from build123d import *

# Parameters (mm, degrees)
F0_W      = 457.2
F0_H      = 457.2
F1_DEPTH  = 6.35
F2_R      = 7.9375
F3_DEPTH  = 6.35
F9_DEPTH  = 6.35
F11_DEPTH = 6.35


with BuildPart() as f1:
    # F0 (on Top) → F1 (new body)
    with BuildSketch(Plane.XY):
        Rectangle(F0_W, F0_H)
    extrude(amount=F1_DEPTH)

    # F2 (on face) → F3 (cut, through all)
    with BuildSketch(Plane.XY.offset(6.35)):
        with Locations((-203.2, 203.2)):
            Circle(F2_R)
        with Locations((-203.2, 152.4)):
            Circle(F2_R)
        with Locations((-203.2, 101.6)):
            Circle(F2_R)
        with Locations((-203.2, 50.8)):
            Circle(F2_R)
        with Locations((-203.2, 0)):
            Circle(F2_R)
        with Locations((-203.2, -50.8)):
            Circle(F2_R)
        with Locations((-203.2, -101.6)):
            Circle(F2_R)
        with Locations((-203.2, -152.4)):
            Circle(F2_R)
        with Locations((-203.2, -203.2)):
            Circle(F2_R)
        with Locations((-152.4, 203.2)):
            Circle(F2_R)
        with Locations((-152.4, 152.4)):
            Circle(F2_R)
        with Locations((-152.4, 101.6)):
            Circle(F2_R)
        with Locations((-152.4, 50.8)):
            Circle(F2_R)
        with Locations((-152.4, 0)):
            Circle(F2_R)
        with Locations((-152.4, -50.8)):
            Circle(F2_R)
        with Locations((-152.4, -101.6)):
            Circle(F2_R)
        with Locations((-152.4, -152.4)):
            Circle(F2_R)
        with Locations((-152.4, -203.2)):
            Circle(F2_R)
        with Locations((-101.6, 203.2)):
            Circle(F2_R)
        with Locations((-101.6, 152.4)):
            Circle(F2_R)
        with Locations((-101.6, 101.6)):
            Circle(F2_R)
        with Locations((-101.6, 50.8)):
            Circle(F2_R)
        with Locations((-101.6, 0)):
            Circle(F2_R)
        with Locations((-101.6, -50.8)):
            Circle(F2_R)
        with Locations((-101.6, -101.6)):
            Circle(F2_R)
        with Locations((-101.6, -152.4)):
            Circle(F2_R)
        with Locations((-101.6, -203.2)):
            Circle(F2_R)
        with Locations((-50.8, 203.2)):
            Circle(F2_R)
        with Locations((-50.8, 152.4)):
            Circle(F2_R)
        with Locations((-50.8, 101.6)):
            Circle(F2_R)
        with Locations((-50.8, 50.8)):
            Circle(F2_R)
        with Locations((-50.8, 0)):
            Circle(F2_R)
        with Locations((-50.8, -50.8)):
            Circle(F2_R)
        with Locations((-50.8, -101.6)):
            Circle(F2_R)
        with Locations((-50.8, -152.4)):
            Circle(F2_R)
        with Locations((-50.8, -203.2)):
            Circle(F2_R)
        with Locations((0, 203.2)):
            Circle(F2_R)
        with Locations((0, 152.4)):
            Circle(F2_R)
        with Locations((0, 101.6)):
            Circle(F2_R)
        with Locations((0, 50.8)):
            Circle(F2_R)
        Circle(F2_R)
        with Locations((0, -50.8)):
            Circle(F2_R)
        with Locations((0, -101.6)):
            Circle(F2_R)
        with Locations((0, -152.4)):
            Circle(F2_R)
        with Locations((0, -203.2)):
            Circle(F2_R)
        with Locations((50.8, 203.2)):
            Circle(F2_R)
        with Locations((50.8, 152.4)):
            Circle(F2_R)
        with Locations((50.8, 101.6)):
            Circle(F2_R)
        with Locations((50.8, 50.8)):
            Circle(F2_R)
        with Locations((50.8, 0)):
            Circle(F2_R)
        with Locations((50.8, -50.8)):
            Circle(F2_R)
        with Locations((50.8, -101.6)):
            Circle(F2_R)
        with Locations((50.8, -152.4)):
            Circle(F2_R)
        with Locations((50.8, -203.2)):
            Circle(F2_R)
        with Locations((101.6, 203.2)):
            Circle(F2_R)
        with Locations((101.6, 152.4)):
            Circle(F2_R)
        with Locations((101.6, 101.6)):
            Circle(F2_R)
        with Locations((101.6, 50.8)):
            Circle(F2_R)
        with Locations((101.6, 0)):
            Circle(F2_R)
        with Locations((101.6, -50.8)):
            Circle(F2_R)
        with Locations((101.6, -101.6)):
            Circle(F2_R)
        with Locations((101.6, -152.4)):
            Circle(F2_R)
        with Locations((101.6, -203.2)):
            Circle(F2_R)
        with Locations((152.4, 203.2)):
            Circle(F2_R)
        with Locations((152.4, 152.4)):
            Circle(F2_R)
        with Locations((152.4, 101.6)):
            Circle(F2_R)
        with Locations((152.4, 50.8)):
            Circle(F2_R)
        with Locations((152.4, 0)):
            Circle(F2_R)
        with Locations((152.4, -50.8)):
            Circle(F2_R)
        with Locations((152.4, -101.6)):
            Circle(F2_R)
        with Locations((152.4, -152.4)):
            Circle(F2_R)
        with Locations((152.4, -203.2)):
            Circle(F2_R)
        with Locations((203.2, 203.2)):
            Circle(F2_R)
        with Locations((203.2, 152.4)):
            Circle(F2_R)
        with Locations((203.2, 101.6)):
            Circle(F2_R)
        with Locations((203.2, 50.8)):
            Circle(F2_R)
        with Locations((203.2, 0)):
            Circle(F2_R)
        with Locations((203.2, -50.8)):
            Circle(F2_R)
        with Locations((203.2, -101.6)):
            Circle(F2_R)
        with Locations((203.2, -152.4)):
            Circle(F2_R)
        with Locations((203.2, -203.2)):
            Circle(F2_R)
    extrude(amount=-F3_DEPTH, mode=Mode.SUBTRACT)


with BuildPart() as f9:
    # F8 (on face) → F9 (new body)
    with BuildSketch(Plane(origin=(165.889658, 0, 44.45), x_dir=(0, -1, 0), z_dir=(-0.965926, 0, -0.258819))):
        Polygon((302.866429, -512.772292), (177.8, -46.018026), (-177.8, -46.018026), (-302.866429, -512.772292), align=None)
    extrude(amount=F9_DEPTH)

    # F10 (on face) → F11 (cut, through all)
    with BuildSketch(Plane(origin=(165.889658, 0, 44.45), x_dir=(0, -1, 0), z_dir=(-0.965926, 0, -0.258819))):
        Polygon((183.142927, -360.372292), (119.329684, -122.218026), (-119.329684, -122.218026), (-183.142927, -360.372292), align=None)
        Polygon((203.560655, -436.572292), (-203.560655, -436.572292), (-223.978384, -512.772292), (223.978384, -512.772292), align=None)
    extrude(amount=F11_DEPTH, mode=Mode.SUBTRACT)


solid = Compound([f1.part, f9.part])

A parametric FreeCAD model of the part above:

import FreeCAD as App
import Part
import Sketcher

V = App.Vector
Q = App.Units.Quantity


def add_polygon(sketch, points):
    """Adds a closed chain of lines whose ends are joined by coincident constraints."""
    first, n = sketch.GeometryCount, len(points)
    for a, b in zip(points, points[1:] + points[:1]):
        sketch.addGeometry(Part.LineSegment(App.Vector(*a, 0), App.Vector(*b, 0)), False)
    for i in range(n):
        sketch.addConstraint(Sketcher.Constraint("Coincident", first + i, 2, first + (i + 1) % n, 1))

doc = App.newDocument("Part")
body = doc.addObject("PartDesign::Body", "Body")

sketch1 = body.newObject("Sketcher::SketchObject", "Sketch")
sketch1.AttachmentSupport = (doc.getObject("XY_Plane"), [""])
sketch1.MapMode = "FlatFace"
add_polygon(sketch1, [(-229, 229), (-229, -229), (229, -229), (229, 229)])
sketch1.addConstraint([
    Sketcher.Constraint("Vertical", 0),
    Sketcher.Constraint("Horizontal", 1),
    Sketcher.Constraint("Vertical", 2),
    Sketcher.Constraint("Horizontal", 3),
    Sketcher.Constraint("Symmetric", 0, 2, 2, 2, -1, 1),
    Sketcher.Constraint("Equal", 3, 0),
    Sketcher.Constraint("DistanceX", 1, 1, 1, 2, Q("18 in")),
])
pad1 = body.newObject("PartDesign::Pad", "Pad")
pad1.Profile = sketch1
pad1.Length = Q("0.25 in")

sketch2 = body.newObject("Sketcher::SketchObject", "Sketch001")
sketch2.AttachmentSupport = (doc.getObject("XY_Plane"), [""])
sketch2.MapMode = "FlatFace"
sketch2.AttachmentOffset = App.Placement(V(0, 0, 0.25 * 25.4), App.Rotation())
sketch2.addGeometry([
    Part.Circle(V(-203, 203, 0), V(0, 0, 1), 8),
    Part.Circle(V(-203, 152, 0), V(0, 0, 1), 8),
    Part.Circle(V(-203, 102, 0), V(0, 0, 1), 8),
    Part.Circle(V(-203, 51, 0), V(0, 0, 1), 8),
    Part.Circle(V(-203, 0, 0), V(0, 0, 1), 8),
    Part.Circle(V(-203, -51, 0), V(0, 0, 1), 8),
    Part.Circle(V(-203, -102, 0), V(0, 0, 1), 8),
    Part.Circle(V(-203, -152, 0), V(0, 0, 1), 8),
    Part.Circle(V(-203, -203, 0), V(0, 0, 1), 8),
    Part.Circle(V(-152, 203, 0), V(0, 0, 1), 8),
    Part.Circle(V(-152, 152, 0), V(0, 0, 1), 8),
    Part.Circle(V(-152, 102, 0), V(0, 0, 1), 8),
    Part.Circle(V(-152, 51, 0), V(0, 0, 1), 8),
    Part.Circle(V(-152, 0, 0), V(0, 0, 1), 8),
    Part.Circle(V(-152, -51, 0), V(0, 0, 1), 8),
    Part.Circle(V(-152, -102, 0), V(0, 0, 1), 8),
    Part.Circle(V(-152, -152, 0), V(0, 0, 1), 8),
    Part.Circle(V(-152, -203, 0), V(0, 0, 1), 8),
    Part.Circle(V(-102, 203, 0), V(0, 0, 1), 8),
    Part.Circle(V(-102, 152, 0), V(0, 0, 1), 8),
    Part.Circle(V(-102, 102, 0), V(0, 0, 1), 8),
    Part.Circle(V(-102, 51, 0), V(0, 0, 1), 8),
    Part.Circle(V(-102, 0, 0), V(0, 0, 1), 8),
    Part.Circle(V(-102, -51, 0), V(0, 0, 1), 8),
    Part.Circle(V(-102, -102, 0), V(0, 0, 1), 8),
    Part.Circle(V(-102, -152, 0), V(0, 0, 1), 8),
    Part.Circle(V(-102, -203, 0), V(0, 0, 1), 8),
    Part.Circle(V(-51, 203, 0), V(0, 0, 1), 8),
    Part.Circle(V(-51, 152, 0), V(0, 0, 1), 8),
    Part.Circle(V(-51, 102, 0), V(0, 0, 1), 8),
    Part.Circle(V(-51, 51, 0), V(0, 0, 1), 8),
    Part.Circle(V(-51, 0, 0), V(0, 0, 1), 8),
    Part.Circle(V(-51, -51, 0), V(0, 0, 1), 8),
    Part.Circle(V(-51, -102, 0), V(0, 0, 1), 8),
    Part.Circle(V(-51, -152, 0), V(0, 0, 1), 8),
    Part.Circle(V(-51, -203, 0), V(0, 0, 1), 8),
    Part.Circle(V(0, 203, 0), V(0, 0, 1), 8),
    Part.Circle(V(0, 152, 0), V(0, 0, 1), 8),
    Part.Circle(V(0, 102, 0), V(0, 0, 1), 8),
    Part.Circle(V(0, 51, 0), V(0, 0, 1), 8),
    Part.Circle(V(0, 0, 0), V(0, 0, 1), 8),
    Part.Circle(V(0, -51, 0), V(0, 0, 1), 8),
    Part.Circle(V(0, -102, 0), V(0, 0, 1), 8),
    Part.Circle(V(0, -152, 0), V(0, 0, 1), 8),
    Part.Circle(V(0, -203, 0), V(0, 0, 1), 8),
    Part.Circle(V(51, 203, 0), V(0, 0, 1), 8),
    Part.Circle(V(51, 152, 0), V(0, 0, 1), 8),
    Part.Circle(V(51, 102, 0), V(0, 0, 1), 8),
    Part.Circle(V(51, 51, 0), V(0, 0, 1), 8),
    Part.Circle(V(51, 0, 0), V(0, 0, 1), 8),
    Part.Circle(V(51, -51, 0), V(0, 0, 1), 8),
    Part.Circle(V(51, -102, 0), V(0, 0, 1), 8),
    Part.Circle(V(51, -152, 0), V(0, 0, 1), 8),
    Part.Circle(V(51, -203, 0), V(0, 0, 1), 8),
    Part.Circle(V(102, 203, 0), V(0, 0, 1), 8),
    Part.Circle(V(102, 152, 0), V(0, 0, 1), 8),
    Part.Circle(V(102, 102, 0), V(0, 0, 1), 8),
    Part.Circle(V(102, 51, 0), V(0, 0, 1), 8),
    Part.Circle(V(102, 0, 0), V(0, 0, 1), 8),
    Part.Circle(V(102, -51, 0), V(0, 0, 1), 8),
    Part.Circle(V(102, -102, 0), V(0, 0, 1), 8),
    Part.Circle(V(102, -152, 0), V(0, 0, 1), 8),
    Part.Circle(V(102, -203, 0), V(0, 0, 1), 8),
    Part.Circle(V(152, 203, 0), V(0, 0, 1), 8),
    Part.Circle(V(152, 152, 0), V(0, 0, 1), 8),
    Part.Circle(V(152, 102, 0), V(0, 0, 1), 8),
    Part.Circle(V(152, 51, 0), V(0, 0, 1), 8),
    Part.Circle(V(152, 0, 0), V(0, 0, 1), 8),
    Part.Circle(V(152, -51, 0), V(0, 0, 1), 8),
    Part.Circle(V(152, -102, 0), V(0, 0, 1), 8),
    Part.Circle(V(152, -152, 0), V(0, 0, 1), 8),
    Part.Circle(V(152, -203, 0), V(0, 0, 1), 8),
    Part.Circle(V(203, 203, 0), V(0, 0, 1), 8),
    Part.Circle(V(203, 152, 0), V(0, 0, 1), 8),
    Part.Circle(V(203, 102, 0), V(0, 0, 1), 8),
    Part.Circle(V(203, 51, 0), V(0, 0, 1), 8),
    Part.Circle(V(203, 0, 0), V(0, 0, 1), 8),
    Part.Circle(V(203, -51, 0), V(0, 0, 1), 8),
    Part.Circle(V(203, -102, 0), V(0, 0, 1), 8),
    Part.Circle(V(203, -152, 0), V(0, 0, 1), 8),
    Part.Circle(V(203, -203, 0), V(0, 0, 1), 8),
], False)
sketch2.addConstraint([
    Sketcher.Constraint("Coincident", 40, 3, -1, 1),
    Sketcher.Constraint("Equal", 0, 1),
    Sketcher.Constraint("Equal", 1, 2),
    Sketcher.Constraint("Equal", 2, 3),
    Sketcher.Constraint("Equal", 3, 4),
    Sketcher.Constraint("Equal", 4, 5),
    Sketcher.Constraint("Equal", 5, 6),
    Sketcher.Constraint("Equal", 6, 7),
    Sketcher.Constraint("Equal", 7, 8),
    Sketcher.Constraint("Equal", 8, 9),
    Sketcher.Constraint("Equal", 9, 10),
    Sketcher.Constraint("Equal", 10, 11),
    Sketcher.Constraint("Equal", 11, 12),
    Sketcher.Constraint("Equal", 12, 13),
    Sketcher.Constraint("Equal", 13, 14),
    Sketcher.Constraint("Equal", 14, 15),
    Sketcher.Constraint("Equal", 15, 16),
    Sketcher.Constraint("Equal", 16, 17),
    Sketcher.Constraint("Equal", 17, 18),
    Sketcher.Constraint("Equal", 18, 19),
    Sketcher.Constraint("Equal", 19, 20),
    Sketcher.Constraint("Equal", 20, 21),
    Sketcher.Constraint("Equal", 21, 22),
    Sketcher.Constraint("Equal", 22, 23),
    Sketcher.Constraint("Equal", 23, 24),
    Sketcher.Constraint("Equal", 24, 25),
    Sketcher.Constraint("Equal", 25, 26),
    Sketcher.Constraint("Equal", 26, 27),
    Sketcher.Constraint("Equal", 27, 28),
    Sketcher.Constraint("Equal", 28, 29),
    Sketcher.Constraint("Equal", 29, 30),
    Sketcher.Constraint("Equal", 30, 31),
    Sketcher.Constraint("Equal", 31, 32),
    Sketcher.Constraint("Equal", 32, 33),
    Sketcher.Constraint("Equal", 33, 34),
    Sketcher.Constraint("Equal", 34, 35),
    Sketcher.Constraint("Equal", 35, 36),
    Sketcher.Constraint("Equal", 36, 37),
    Sketcher.Constraint("Equal", 37, 38),
    Sketcher.Constraint("Equal", 38, 39),
    Sketcher.Constraint("Equal", 39, 40),
    Sketcher.Constraint("Equal", 40, 41),
    Sketcher.Constraint("Equal", 41, 42),
    Sketcher.Constraint("Equal", 42, 43),
    Sketcher.Constraint("Equal", 43, 44),
    Sketcher.Constraint("Equal", 44, 45),
    Sketcher.Constraint("Equal", 45, 46),
    Sketcher.Constraint("Equal", 46, 47),
    Sketcher.Constraint("Equal", 47, 48),
    Sketcher.Constraint("Equal", 48, 49),
    Sketcher.Constraint("Equal", 49, 50),
    Sketcher.Constraint("Equal", 50, 51),
    Sketcher.Constraint("Equal", 51, 52),
    Sketcher.Constraint("Equal", 52, 53),
    Sketcher.Constraint("Equal", 53, 54),
    Sketcher.Constraint("Equal", 54, 55),
    Sketcher.Constraint("Equal", 55, 56),
    Sketcher.Constraint("Equal", 56, 57),
    Sketcher.Constraint("Equal", 57, 58),
    Sketcher.Constraint("Equal", 58, 59),
    Sketcher.Constraint("Equal", 59, 60),
    Sketcher.Constraint("Equal", 60, 61),
    Sketcher.Constraint("Equal", 61, 62),
    Sketcher.Constraint("Equal", 62, 63),
    Sketcher.Constraint("Equal", 63, 64),
    Sketcher.Constraint("Equal", 64, 65),
    Sketcher.Constraint("Equal", 65, 66),
    Sketcher.Constraint("Equal", 66, 67),
    Sketcher.Constraint("Equal", 67, 68),
    Sketcher.Constraint("Equal", 68, 69),
    Sketcher.Constraint("Equal", 69, 70),
    Sketcher.Constraint("Equal", 70, 71),
    Sketcher.Constraint("Equal", 71, 72),
    Sketcher.Constraint("Equal", 72, 73),
    Sketcher.Constraint("Equal", 73, 74),
    Sketcher.Constraint("Equal", 74, 75),
    Sketcher.Constraint("Equal", 75, 76),
    Sketcher.Constraint("Equal", 76, 77),
    Sketcher.Constraint("Equal", 77, 78),
    Sketcher.Constraint("Equal", 78, 79),
    Sketcher.Constraint("Equal", 79, 80),
    Sketcher.Constraint("Symmetric", 39, 3, 41, 3, -1, 1),
    Sketcher.Constraint("Symmetric", 38, 3, 42, 3, -1, 1),
    Sketcher.Constraint("Symmetric", 37, 3, 43, 3, -1, 1),
    Sketcher.Constraint("Symmetric", 36, 3, 44, 3, -1, 1),
    Sketcher.Constraint("Symmetric", 35, 3, 45, 3, -1, 1),
    Sketcher.Constraint("Symmetric", 34, 3, 46, 3, -1, 1),
    Sketcher.Constraint("Symmetric", 33, 3, 47, 3, -1, 1),
    Sketcher.Constraint("Symmetric", 32, 3, 48, 3, -1, 1),
    Sketcher.Constraint("Symmetric", 31, 3, 49, 3, -1, 1),
    Sketcher.Constraint("Symmetric", 30, 3, 50, 3, -1, 1),
    Sketcher.Constraint("Symmetric", 29, 3, 51, 3, -1, 1),
    Sketcher.Constraint("Symmetric", 28, 3, 52, 3, -1, 1),
    Sketcher.Constraint("Symmetric", 27, 3, 53, 3, -1, 1),
    Sketcher.Constraint("Symmetric", 26, 3, 54, 3, -1, 1),
    Sketcher.Constraint("Symmetric", 25, 3, 55, 3, -1, 1),
    Sketcher.Constraint("Symmetric", 24, 3, 56, 3, -1, 1),
    Sketcher.Constraint("Symmetric", 23, 3, 57, 3, -1, 1),
    Sketcher.Constraint("Symmetric", 22, 3, 58, 3, -1, 1),
    Sketcher.Constraint("Symmetric", 21, 3, 59, 3, -1, 1),
    Sketcher.Constraint("Symmetric", 20, 3, 60, 3, -1, 1),
    Sketcher.Constraint("Symmetric", 19, 3, 61, 3, -1, 1),
    Sketcher.Constraint("Symmetric", 18, 3, 62, 3, -1, 1),
    Sketcher.Constraint("Symmetric", 17, 3, 63, 3, -1, 1),
    Sketcher.Constraint("Symmetric", 16, 3, 64, 3, -1, 1),
    Sketcher.Constraint("Symmetric", 15, 3, 65, 3, -1, 1),
    Sketcher.Constraint("Symmetric", 14, 3, 66, 3, -1, 1),
    Sketcher.Constraint("Symmetric", 13, 3, 67, 3, -1, 1),
    Sketcher.Constraint("Symmetric", 12, 3, 68, 3, -1, 1),
    Sketcher.Constraint("Symmetric", 11, 3, 69, 3, -1, 1),
    Sketcher.Constraint("Symmetric", 10, 3, 70, 3, -1, 1),
    Sketcher.Constraint("Symmetric", 9, 3, 71, 3, -1, 1),
    Sketcher.Constraint("Symmetric", 8, 3, 72, 3, -1, 1),
    Sketcher.Constraint("Symmetric", 7, 3, 73, 3, -1, 1),
    Sketcher.Constraint("Symmetric", 6, 3, 74, 3, -1, 1),
    Sketcher.Constraint("Symmetric", 5, 3, 75, 3, -1, 1),
    Sketcher.Constraint("Symmetric", 4, 3, 76, 3, -1, 1),
    Sketcher.Constraint("Symmetric", 3, 3, 77, 3, -1, 1),
    Sketcher.Constraint("Symmetric", 2, 3, 78, 3, -1, 1),
    Sketcher.Constraint("Symmetric", 1, 3, 79, 3, -1, 1),
    Sketcher.Constraint("Symmetric", 0, 3, 80, 3, -1, 1),
    Sketcher.Constraint("Symmetric", 27, 3, 45, 3, -2),
    Sketcher.Constraint("Symmetric", 28, 3, 46, 3, -2),
    Sketcher.Constraint("Symmetric", 29, 3, 47, 3, -2),
    Sketcher.Constraint("Symmetric", 30, 3, 48, 3, -2),
    Sketcher.Constraint("Symmetric", 18, 3, 54, 3, -2),
    Sketcher.Constraint("Symmetric", 19, 3, 55, 3, -2),
    Sketcher.Constraint("Symmetric", 20, 3, 56, 3, -2),
    Sketcher.Constraint("Symmetric", 21, 3, 57, 3, -2),
    Sketcher.Constraint("Symmetric", 9, 3, 63, 3, -2),
    Sketcher.Constraint("Symmetric", 10, 3, 64, 3, -2),
    Sketcher.Constraint("Symmetric", 11, 3, 65, 3, -2),
    Sketcher.Constraint("Symmetric", 12, 3, 66, 3, -2),
    Sketcher.Constraint("Symmetric", 0, 3, 72, 3, -2),
    Sketcher.Constraint("Symmetric", 1, 3, 73, 3, -2),
    Sketcher.Constraint("Symmetric", 2, 3, 74, 3, -2),
    Sketcher.Constraint("Symmetric", 3, 3, 75, 3, -2),
    Sketcher.Constraint("PointOnObject", 4, 3, -1),
    Sketcher.Constraint("PointOnObject", 13, 3, -1),
    Sketcher.Constraint("PointOnObject", 22, 3, -1),
    Sketcher.Constraint("PointOnObject", 31, 3, -1),
    Sketcher.Constraint("PointOnObject", 36, 3, -2),
    Sketcher.Constraint("PointOnObject", 37, 3, -2),
    Sketcher.Constraint("PointOnObject", 38, 3, -2),
    Sketcher.Constraint("PointOnObject", 39, 3, -2),
    Sketcher.Constraint("Horizontal", 0, 3, 9, 3),
    Sketcher.Constraint("Horizontal", 1, 3, 10, 3),
    Sketcher.Constraint("Horizontal", 2, 3, 11, 3),
    Sketcher.Constraint("Horizontal", 3, 3, 12, 3),
    Sketcher.Constraint("Horizontal", 9, 3, 18, 3),
    Sketcher.Constraint("Horizontal", 10, 3, 19, 3),
    Sketcher.Constraint("Horizontal", 11, 3, 20, 3),
    Sketcher.Constraint("Horizontal", 12, 3, 21, 3),
    Sketcher.Constraint("Horizontal", 18, 3, 27, 3),
    Sketcher.Constraint("Horizontal", 19, 3, 28, 3),
    Sketcher.Constraint("Horizontal", 20, 3, 29, 3),
    Sketcher.Constraint("Horizontal", 21, 3, 30, 3),
    Sketcher.Constraint("Horizontal", 27, 3, 36, 3),
    Sketcher.Constraint("Horizontal", 28, 3, 37, 3),
    Sketcher.Constraint("Horizontal", 29, 3, 38, 3),
    Sketcher.Constraint("Horizontal", 30, 3, 39, 3),
    Sketcher.Constraint("Vertical", 0, 3, 1, 3),
    Sketcher.Constraint("Vertical", 1, 3, 2, 3),
    Sketcher.Constraint("Vertical", 2, 3, 3, 3),
    Sketcher.Constraint("Vertical", 3, 3, 4, 3),
    Sketcher.Constraint("Vertical", 9, 3, 10, 3),
    Sketcher.Constraint("Vertical", 10, 3, 11, 3),
    Sketcher.Constraint("Vertical", 11, 3, 12, 3),
    Sketcher.Constraint("Vertical", 12, 3, 13, 3),
    Sketcher.Constraint("Vertical", 18, 3, 19, 3),
    Sketcher.Constraint("Vertical", 19, 3, 20, 3),
    Sketcher.Constraint("Vertical", 20, 3, 21, 3),
    Sketcher.Constraint("Vertical", 21, 3, 22, 3),
    Sketcher.Constraint("Vertical", 27, 3, 28, 3),
    Sketcher.Constraint("Vertical", 28, 3, 29, 3),
    Sketcher.Constraint("Vertical", 29, 3, 30, 3),
    Sketcher.Constraint("Vertical", 30, 3, 31, 3),
    Sketcher.Constraint("Diameter", 0, Q("0.625 in")),
    Sketcher.Constraint("DistanceX", 0, 3, -1, 1, Q("8 in")),
    Sketcher.Constraint("DistanceY", -1, 1, 0, 3, Q("8 in")),
    Sketcher.Constraint("DistanceY", -1, 1, 1, 3, Q("6 in")),
    Sketcher.Constraint("DistanceY", -1, 1, 2, 3, Q("4 in")),
    Sketcher.Constraint("DistanceY", -1, 1, 3, 3, Q("2 in")),
    Sketcher.Constraint("DistanceX", 9, 3, -1, 1, Q("6 in")),
    Sketcher.Constraint("DistanceX", 18, 3, -1, 1, Q("4 in")),
    Sketcher.Constraint("DistanceX", 27, 3, -1, 1, Q("2 in")),
])
pocket1 = body.newObject("PartDesign::Pocket", "Pocket")
pocket1.Profile = sketch2
pocket1.Type = "ThroughAll"
body2 = doc.addObject("PartDesign::Body", "Body001")

sketch3 = body2.newObject("Sketcher::SketchObject", "Sketch002")
sketch3.Placement = App.Placement(V(165.889658, 0, 44.45), App.Rotation(V(0, -1, 0), V(-0.25881896, 0, 0.965925849), V(-0.965925849, 0, -0.25881896), "ZXY"))
add_polygon(sketch3, [(303, -513), (178, -46), (-178, -46), (-303, -513)])
sketch3.addConstraint([
    Sketcher.Constraint("Horizontal", 1),
    Sketcher.Constraint("Horizontal", 3),
    Sketcher.Constraint("Equal", 0, 2),
    Sketcher.Constraint("DistanceX", 1, 2, 1, 1, Q("14 in")),
    Sketcher.Constraint("DistanceX", -1, 1, 0, 2, Q("7 in")),
    Sketcher.Constraint("Angle", 0, Q("105 deg")),
    Sketcher.Constraint("DistanceX", 3, 1, 3, 2, 605.732858),
    Sketcher.Constraint("DistanceY", 2, 2, -1, 1, 512.772292),
])
pad2 = body2.newObject("PartDesign::Pad", "Pad001")
pad2.Profile = sketch3
pad2.Length = Q("0.25 in")

sketch4 = body2.newObject("Sketcher::SketchObject", "Sketch003")
sketch4.Placement = App.Placement(V(165.889658, 0, 44.45), App.Rotation(V(0, -1, 0), V(-0.25881896, 0, 0.965925849), V(-0.965925849, 0, -0.25881896), "ZXY"))
add_polygon(sketch4, [(183, -360), (119, -122), (-119, -122), (-183, -360)])
add_polygon(sketch4, [(204, -437), (-204, -437), (-224, -513), (224, -513)])
sketch4.addConstraint([
    Sketcher.Constraint("Horizontal", 1),
    Sketcher.Constraint("Horizontal", 3),
    Sketcher.Constraint("Horizontal", 4),
    Sketcher.Constraint("Horizontal", 6),
    Sketcher.Constraint("Parallel", 2, 5),
    Sketcher.Constraint("Parallel", 0, 7),
    Sketcher.Constraint("Equal", 0, 2),
    Sketcher.Constraint("Angle", 0, Q("105 deg")),
    Sketcher.Constraint("DistanceY", 4, 2, 2, 2, Q("3 in")),
    Sketcher.Constraint("DistanceY", 5, 2, 4, 2, Q("3 in")),
    Sketcher.Constraint("DistanceX", 1, 2, 1, 1, 238.659368),
    Sketcher.Constraint("DistanceX", 4, 2, 4, 1, 407.12131),
    Sketcher.Constraint("DistanceX", 5, 2, 1, 2, 104.6487),
    Sketcher.Constraint("Distance", 0, 246.555439),
    Sketcher.Constraint("DistanceY", 2, 2, -1, 1, 360.372292),
    Sketcher.Constraint("DistanceX", -1, 1, 0, 2, 119.329684),
])
pocket2 = body2.newObject("PartDesign::Pocket", "Pocket001")
pocket2.Profile = sketch4
pocket2.Type = "ThroughAll"
pocket2.Reversed = True

doc.recompute()
